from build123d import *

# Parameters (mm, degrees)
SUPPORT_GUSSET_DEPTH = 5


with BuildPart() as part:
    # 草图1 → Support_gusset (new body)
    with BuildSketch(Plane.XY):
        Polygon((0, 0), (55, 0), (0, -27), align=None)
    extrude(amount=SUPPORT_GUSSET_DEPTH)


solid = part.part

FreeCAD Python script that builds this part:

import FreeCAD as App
import Part
import Sketcher


def add_polygon(sketch, points):
    """Adds a closed chain of lines whose ends are joined by coincident constraints."""
    first, n = sketch.GeometryCount, len(points)
    for a, b in zip(points, points[1:] + points[:1]):
        sketch.addGeometry(Part.LineSegment(App.Vector(*a, 0), App.Vector(*b, 0)), False)
    for i in range(n):
        sketch.addConstraint(Sketcher.Constraint("Coincident", first + i, 2, first + (i + 1) % n, 1))

doc = App.newDocument("Part")
body = doc.addObject("PartDesign::Body", "Body")

# Sketch on XY plane
sketch1 = body.newObject("Sketcher::SketchObject", "Sketch")
sketch1.AttachmentSupport = (doc.getObject("XY_Plane"), [""])
sketch1.MapMode = "FlatFace"
add_polygon(sketch1, [(55, 0), (0, 0), (0, -27)])  # lines 0-2
sketch1.addConstraint([
    Sketcher.Constraint("Horizontal", 0),
    Sketcher.Constraint("Vertical", 1),
    Sketcher.Constraint("Coincident", 0, 2, -1, 1),
    Sketcher.Constraint("DistanceX", 0, 2, 0, 1, 55.0),
    Sketcher.Constraint("DistanceY", 1, 2, 1, 1, 27.0),
])
pad1 = body.newObject("PartDesign::Pad", "Pad")
pad1.Profile = sketch1
pad1.Length = 5

doc.recompute()
